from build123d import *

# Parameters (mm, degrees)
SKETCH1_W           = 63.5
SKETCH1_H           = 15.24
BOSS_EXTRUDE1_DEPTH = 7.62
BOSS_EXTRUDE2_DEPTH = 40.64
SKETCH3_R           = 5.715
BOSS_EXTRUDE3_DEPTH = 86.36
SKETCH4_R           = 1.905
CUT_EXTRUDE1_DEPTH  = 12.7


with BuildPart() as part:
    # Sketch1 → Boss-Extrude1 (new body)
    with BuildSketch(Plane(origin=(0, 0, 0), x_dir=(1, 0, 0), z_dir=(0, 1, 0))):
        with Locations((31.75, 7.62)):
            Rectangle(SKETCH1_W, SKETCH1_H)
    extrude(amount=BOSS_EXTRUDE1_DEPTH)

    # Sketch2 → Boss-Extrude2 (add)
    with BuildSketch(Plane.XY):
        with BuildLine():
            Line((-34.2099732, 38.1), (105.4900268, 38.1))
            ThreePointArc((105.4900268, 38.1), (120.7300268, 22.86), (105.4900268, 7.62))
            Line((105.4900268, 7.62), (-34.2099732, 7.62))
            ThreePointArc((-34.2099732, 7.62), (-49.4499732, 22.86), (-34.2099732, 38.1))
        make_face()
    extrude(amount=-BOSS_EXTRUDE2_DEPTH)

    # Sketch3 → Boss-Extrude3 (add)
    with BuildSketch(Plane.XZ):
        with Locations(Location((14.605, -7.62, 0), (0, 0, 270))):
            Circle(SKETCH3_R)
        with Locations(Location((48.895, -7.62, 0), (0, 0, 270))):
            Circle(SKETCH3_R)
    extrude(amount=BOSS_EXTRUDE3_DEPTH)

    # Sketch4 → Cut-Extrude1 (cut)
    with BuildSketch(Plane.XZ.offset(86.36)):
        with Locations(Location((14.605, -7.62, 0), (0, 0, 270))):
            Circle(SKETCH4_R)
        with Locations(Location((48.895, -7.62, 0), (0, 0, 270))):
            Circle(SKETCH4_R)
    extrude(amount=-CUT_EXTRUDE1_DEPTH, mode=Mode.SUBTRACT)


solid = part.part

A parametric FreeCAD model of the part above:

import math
import FreeCAD as App
import Part
import Sketcher
Q = App.Units.Quantity

doc = App.newDocument("Part")
body = doc.addObject("PartDesign::Body", "Body")

sketch1 = doc.addObject("Sketcher::SketchObject", "Sketch")
body.addObject(sketch1)
sketch1.AttachmentSupport = (doc.XZ_Plane, [""])
sketch1.MapMode = "FlatFace"
sketch1.addGeometry(Part.LineSegment(App.Vector(0, -15, 0), App.Vector(0, 0, 0)), False)
sketch1.addGeometry(Part.LineSegment(App.Vector(0, 0, 0), App.Vector(64, 0, 0)), False)
sketch1.addGeometry(Part.LineSegment(App.Vector(64, 0, 0), App.Vector(64, -15, 0)), False)
sketch1.addGeometry(Part.LineSegment(App.Vector(64, -15, 0), App.Vector(0, -15, 0)), False)
sketch1.addConstraint(Sketcher.Constraint("Coincident", 0, 2, 1, 1))
sketch1.addConstraint(Sketcher.Constraint("Coincident", 1, 2, 2, 1))
sketch1.addConstraint(Sketcher.Constraint("Coincident", 2, 2, 3, 1))
sketch1.addConstraint(Sketcher.Constraint("Coincident", 3, 2, 0, 1))
sketch1.addConstraint(Sketcher.Constraint("Vertical", 0))
sketch1.addConstraint(Sketcher.Constraint("Horizontal", 1))
sketch1.addConstraint(Sketcher.Constraint("Vertical", 2))
sketch1.addConstraint(Sketcher.Constraint("Horizontal", 3))
sketch1.addConstraint(Sketcher.Constraint("Coincident", 0, 2, -1, 1))
sketch1.addConstraint(Sketcher.Constraint("DistanceX", 1, 1, 1, 2, Q("2.5 in")))
sketch1.addConstraint(Sketcher.Constraint("DistanceY", 0, 1, 0, 2, Q("0.6 in")))
pad1 = doc.addObject("PartDesign::Pad", "Pad")
body.addObject(pad1)
pad1.Profile = sketch1
pad1.Length = Q("0.3 in")
pad1.Reversed = True

sketch2 = doc.addObject("Sketcher::SketchObject", "Sketch001")
body.addObject(sketch2)
sketch2.AttachmentSupport = (doc.XY_Plane, [""])
sketch2.MapMode = "FlatFace"
sketch2.addGeometry(Part.LineSegment(App.Vector(105, 38, 0), App.Vector(-34, 38, 0)), False)
sketch2.addGeometry(Part.ArcOfCircle(Part.Circle(App.Vector(-34, 23, 0), App.Vector(0, 0, 1), 15), math.radians(90), math.radians(270)), False)
sketch2.addGeometry(Part.LineSegment(App.Vector(-34, 8, 0), App.Vector(105, 8, 0)), False)
sketch2.addGeometry(Part.ArcOfCircle(Part.Circle(App.Vector(105, 23, 0), App.Vector(0, 0, 1), 15), math.radians(-90), math.radians(90)), False)
sketch2.addConstraint(Sketcher.Constraint("Tangent", 0, 2, 1, 1))
sketch2.addConstraint(Sketcher.Constraint("Tangent", 1, 2, 2, 1))
sketch2.addConstraint(Sketcher.Constraint("Tangent", 2, 2, 3, 1))
sketch2.addConstraint(Sketcher.Constraint("Tangent", 3, 2, 0, 1))
sketch2.addConstraint(Sketcher.Constraint("Horizontal", 0))
sketch2.addConstraint(Sketcher.Constraint("Horizontal", 2))
sketch2.addConstraint(Sketcher.Constraint("Radius", 1, Q("0.6 in")))
sketch2.addConstraint(Sketcher.Constraint("DistanceX", 0, 2, 0, 1, Q("5.5 in")))
sketch2.addConstraint(Sketcher.Constraint("DistanceY", -1, 1, 1, 3, Q("0.9 in")))
sketch2.addConstraint(Sketcher.Constraint("DistanceX", 1, 3, -1, 1, 34.209973))
pad2 = doc.addObject("PartDesign::Pad", "Pad001")
body.addObject(pad2)
pad2.Profile = sketch2
pad2.Length = Q("1.6 in")
pad2.Reversed = True

sketch3 = doc.addObject("Sketcher::SketchObject", "Sketch002")
body.addObject(sketch3)
sketch3.AttachmentSupport = (doc.XZ_Plane, [""])
sketch3.MapMode = "FlatFace"
sketch3.addGeometry(Part.Circle(App.Vector(15, -8, 0), App.Vector(0, 0, 1), 6), False)
sketch3.addGeometry(Part.Circle(App.Vector(49, -8, 0), App.Vector(0, 0, 1), 6), False)
sketch3.addConstraint(Sketcher.Constraint("Equal", 0, 1))
sketch3.addConstraint(Sketcher.Constraint("Horizontal", 0, 3, 1, 3))
sketch3.addConstraint(Sketcher.Constraint("Diameter", 0, Q("0.45 in")))
sketch3.addConstraint(Sketcher.Constraint("DistanceY", 0, 3, -1, 1, Q("0.3 in")))
sketch3.addConstraint(Sketcher.Constraint("DistanceX", 0, 3, 1, 3, Q("1.35 in")))
sketch3.addConstraint(Sketcher.Constraint("DistanceX", -1, 1, 0, 3, Q("0.575 in")))
pad3 = doc.addObject("PartDesign::Pad", "Pad002")
body.addObject(pad3)
pad3.Profile = sketch3
pad3.Length = Q("3.4 in")

sketch4 = doc.addObject("Sketcher::SketchObject", "Sketch003")
body.addObject(sketch4)
sketch4.AttachmentSupport = (doc.XZ_Plane, [""])
sketch4.MapMode = "FlatFace"
sketch4.AttachmentOffset = App.Placement(App.Vector(0, 0, 3.4 * 25.4), App.Rotation())
sketch4.addGeometry(Part.Circle(App.Vector(14.6, -7.6, 0), App.Vector(0, 0, 1), 1.9), False)
sketch4.addGeometry(Part.Circle(App.Vector(48.9, -7.6, 0), App.Vector(0, 0, 1), 1.9), False)
sketch4.addConstraint(Sketcher.Constraint("Equal", 0, 1))
sketch4.addConstraint(Sketcher.Constraint("Horizontal", 0, 3, 1, 3))
sketch4.addConstraint(Sketcher.Constraint("Diameter", 0, Q("0.15 in")))
sketch4.addConstraint(Sketcher.Constraint("DistanceY", 0, 3, -1, 1, Q("0.3 in")))
sketch4.addConstraint(Sketcher.Constraint("DistanceX", 0, 3, 1, 3, Q("1.35 in")))
sketch4.addConstraint(Sketcher.Constraint("DistanceX", -1, 1, 0, 3, Q("0.575 in")))
pocket1 = doc.addObject("PartDesign::Pocket", "Pocket")
body.addObject(pocket1)
pocket1.Profile = sketch4
pocket1.Length = Q("0.5 in")

doc.recompute()
